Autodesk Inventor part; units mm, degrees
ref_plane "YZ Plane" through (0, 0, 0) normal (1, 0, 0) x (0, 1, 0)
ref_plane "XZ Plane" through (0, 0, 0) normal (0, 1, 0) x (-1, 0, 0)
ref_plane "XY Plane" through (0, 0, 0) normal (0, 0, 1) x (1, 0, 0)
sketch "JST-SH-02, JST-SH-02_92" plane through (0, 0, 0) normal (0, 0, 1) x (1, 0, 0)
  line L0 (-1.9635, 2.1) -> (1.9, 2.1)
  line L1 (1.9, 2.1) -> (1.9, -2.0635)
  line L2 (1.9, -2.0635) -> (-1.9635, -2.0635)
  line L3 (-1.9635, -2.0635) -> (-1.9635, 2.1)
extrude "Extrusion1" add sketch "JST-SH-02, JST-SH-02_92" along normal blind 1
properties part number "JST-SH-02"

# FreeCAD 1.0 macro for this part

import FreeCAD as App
import Part
import Sketcher

V = App.Vector
Q = App.Units.Quantity

doc = App.newDocument("Part")
body = doc.addObject("PartDesign::Body", "Body")

# Sketch on XY plane
sketch1 = body.newObject("Sketcher::SketchObject", "Sketch")
sketch1.AttachmentSupport = (doc.getObject("XY_Plane"), [""])
sketch1.MapMode = "FlatFace"
sketch1.addGeometry([
    Part.LineSegment(V(1.9, 2.1, 0), V(-2, 2.1, 0)),
    Part.LineSegment(V(-2, 2.1, 0), V(-2, -2.1, 0)),
    Part.LineSegment(V(-2, -2.1, 0), V(1.9, -2.1, 0)),
    Part.LineSegment(V(1.9, -2.1, 0), V(1.9, 2.1, 0)),
], False)
sketch1.addConstraint([
    Sketcher.Constraint("Coincident", 0, 2, 1, 1),
    Sketcher.Constraint("Coincident", 1, 2, 2, 1),
    Sketcher.Constraint("Coincident", 2, 2, 3, 1),
    Sketcher.Constraint("Coincident", 3, 2, 0, 1),
    Sketcher.Constraint("Horizontal", 0),
    Sketcher.Constraint("Vertical", 1),
    Sketcher.Constraint("Horizontal", 2),
    Sketcher.Constraint("Vertical", 3),
    Sketcher.Constraint("DistanceY", -1, 1, 0, 2, Q("2.1 mm")),
    Sketcher.Constraint("DistanceX", -1, 1, 2, 2, Q("1.9 mm")),
    Sketcher.Constraint("DistanceX", 0, 2, 0, 1, Q("3.8635 mm")),
    Sketcher.Constraint("DistanceY", 1, 2, 1, 1, Q("4.1635 mm")),
])
pad1 = body.newObject("PartDesign::Pad", "Pad")
pad1.Profile = sketch1
pad1.Length = 1

doc.recompute()
